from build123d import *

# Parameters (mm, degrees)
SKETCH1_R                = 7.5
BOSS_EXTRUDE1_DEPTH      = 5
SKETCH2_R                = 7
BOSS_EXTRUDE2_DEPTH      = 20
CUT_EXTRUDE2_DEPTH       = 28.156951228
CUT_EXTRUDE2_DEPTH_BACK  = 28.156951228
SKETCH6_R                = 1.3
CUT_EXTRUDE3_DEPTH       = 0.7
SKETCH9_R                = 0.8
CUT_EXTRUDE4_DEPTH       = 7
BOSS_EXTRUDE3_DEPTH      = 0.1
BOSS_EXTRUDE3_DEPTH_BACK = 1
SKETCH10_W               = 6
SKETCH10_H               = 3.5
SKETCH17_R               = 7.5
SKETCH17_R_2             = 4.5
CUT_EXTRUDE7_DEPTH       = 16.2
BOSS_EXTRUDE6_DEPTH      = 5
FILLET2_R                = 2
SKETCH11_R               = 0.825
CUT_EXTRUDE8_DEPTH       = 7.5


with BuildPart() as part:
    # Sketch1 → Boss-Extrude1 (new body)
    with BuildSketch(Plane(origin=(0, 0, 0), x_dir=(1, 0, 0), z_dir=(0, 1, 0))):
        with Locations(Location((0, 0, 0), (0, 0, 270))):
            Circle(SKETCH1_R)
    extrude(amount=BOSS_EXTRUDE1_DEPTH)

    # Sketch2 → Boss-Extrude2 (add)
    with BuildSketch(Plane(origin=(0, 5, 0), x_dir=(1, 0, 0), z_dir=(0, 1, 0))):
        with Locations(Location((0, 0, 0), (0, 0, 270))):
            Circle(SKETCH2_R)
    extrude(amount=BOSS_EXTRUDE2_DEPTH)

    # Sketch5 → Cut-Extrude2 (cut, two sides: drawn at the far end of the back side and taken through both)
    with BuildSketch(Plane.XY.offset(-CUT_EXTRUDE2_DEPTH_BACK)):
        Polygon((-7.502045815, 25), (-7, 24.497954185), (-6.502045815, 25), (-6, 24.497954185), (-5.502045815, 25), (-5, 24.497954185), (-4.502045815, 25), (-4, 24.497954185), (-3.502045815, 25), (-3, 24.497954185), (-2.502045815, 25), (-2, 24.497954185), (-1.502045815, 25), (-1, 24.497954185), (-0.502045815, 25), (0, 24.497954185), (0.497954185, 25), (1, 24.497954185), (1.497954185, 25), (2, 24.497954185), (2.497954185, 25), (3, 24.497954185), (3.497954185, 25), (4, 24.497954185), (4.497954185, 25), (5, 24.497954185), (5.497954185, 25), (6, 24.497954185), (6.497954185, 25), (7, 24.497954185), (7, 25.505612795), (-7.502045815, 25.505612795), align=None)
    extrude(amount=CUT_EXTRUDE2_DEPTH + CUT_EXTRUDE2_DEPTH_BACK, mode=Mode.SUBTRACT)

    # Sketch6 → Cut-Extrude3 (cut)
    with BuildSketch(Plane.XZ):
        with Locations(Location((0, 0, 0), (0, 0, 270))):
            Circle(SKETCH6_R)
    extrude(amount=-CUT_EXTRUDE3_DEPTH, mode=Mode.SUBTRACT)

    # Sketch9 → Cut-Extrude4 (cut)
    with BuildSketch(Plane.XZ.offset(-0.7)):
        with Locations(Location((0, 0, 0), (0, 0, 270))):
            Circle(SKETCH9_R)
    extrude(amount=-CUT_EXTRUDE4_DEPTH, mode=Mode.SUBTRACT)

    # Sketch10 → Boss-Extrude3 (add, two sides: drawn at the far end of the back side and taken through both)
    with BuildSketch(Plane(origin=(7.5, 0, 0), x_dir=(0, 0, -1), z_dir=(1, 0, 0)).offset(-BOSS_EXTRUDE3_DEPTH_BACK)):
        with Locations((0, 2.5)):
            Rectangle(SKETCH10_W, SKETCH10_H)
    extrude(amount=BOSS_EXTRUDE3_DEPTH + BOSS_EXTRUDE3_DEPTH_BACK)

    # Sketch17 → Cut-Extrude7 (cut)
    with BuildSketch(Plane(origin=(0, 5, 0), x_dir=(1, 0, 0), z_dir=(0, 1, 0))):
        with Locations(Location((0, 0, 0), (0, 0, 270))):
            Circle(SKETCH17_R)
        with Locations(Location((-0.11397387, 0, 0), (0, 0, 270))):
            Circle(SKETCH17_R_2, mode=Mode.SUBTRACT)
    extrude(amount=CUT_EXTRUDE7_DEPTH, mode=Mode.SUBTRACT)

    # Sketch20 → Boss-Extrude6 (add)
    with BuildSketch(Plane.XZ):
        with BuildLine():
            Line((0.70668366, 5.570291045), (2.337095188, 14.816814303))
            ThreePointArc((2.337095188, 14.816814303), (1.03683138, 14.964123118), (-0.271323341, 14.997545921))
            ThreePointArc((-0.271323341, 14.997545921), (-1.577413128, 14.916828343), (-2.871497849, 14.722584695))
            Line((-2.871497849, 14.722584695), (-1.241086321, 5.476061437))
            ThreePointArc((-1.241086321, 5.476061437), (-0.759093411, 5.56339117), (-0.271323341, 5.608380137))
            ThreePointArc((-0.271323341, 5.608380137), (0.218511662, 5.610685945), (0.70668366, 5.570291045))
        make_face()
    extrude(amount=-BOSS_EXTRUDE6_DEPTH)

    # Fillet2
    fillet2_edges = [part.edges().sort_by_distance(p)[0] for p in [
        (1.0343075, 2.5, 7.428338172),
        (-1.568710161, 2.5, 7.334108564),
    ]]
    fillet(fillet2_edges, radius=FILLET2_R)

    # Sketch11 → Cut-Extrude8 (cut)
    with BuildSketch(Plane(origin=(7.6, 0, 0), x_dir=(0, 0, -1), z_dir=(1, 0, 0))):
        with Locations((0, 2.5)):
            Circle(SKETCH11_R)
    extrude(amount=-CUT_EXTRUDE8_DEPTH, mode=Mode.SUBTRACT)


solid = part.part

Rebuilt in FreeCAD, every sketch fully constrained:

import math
import FreeCAD as App
import Part
import Sketcher
Q = App.Units.Quantity


def edges_at(feature, points):
    """Names of the edges that pass closest to the given points."""
    edges = feature.Shape.Edges
    near = lambda p: min(range(len(edges)), key=lambda i: edges[i].distToShape(Part.Vertex(*p))[0])
    return sorted({f"Edge{near(p) + 1}" for p in points})

doc = App.newDocument("Part")
body = doc.addObject("PartDesign::Body", "Body")

sketch1 = doc.addObject("Sketcher::SketchObject", "Sketch")
body.addObject(sketch1)
sketch1.AttachmentSupport = (doc.XZ_Plane, [""])
sketch1.MapMode = "FlatFace"
sketch1.addGeometry(Part.Circle(App.Vector(0, 0, 0), App.Vector(0, 0, 1), 8), False)
sketch1.addConstraint([
    Sketcher.Constraint("Coincident", 0, 3, -1, 1),
    Sketcher.Constraint("Diameter", 0, 15.0),
])
pad1 = doc.addObject("PartDesign::Pad", "Pad")
body.addObject(pad1)
pad1.Profile = sketch1
pad1.Length = 5
pad1.Reversed = True

sketch2 = doc.addObject("Sketcher::SketchObject", "Sketch001")
body.addObject(sketch2)
sketch2.AttachmentSupport = (doc.XZ_Plane, [""])
sketch2.MapMode = "FlatFace"
sketch2.AttachmentOffset = App.Placement(App.Vector(0, 0, -5), App.Rotation())
sketch2.addGeometry(Part.Circle(App.Vector(0, 0, 0), App.Vector(0, 0, 1), 7), False)
sketch2.addConstraint([
    Sketcher.Constraint("Coincident", 0, 3, -1, 1),
    Sketcher.Constraint("Diameter", 0, 14.0),
])
pad2 = doc.addObject("PartDesign::Pad", "Pad001")
body.addObject(pad2)
pad2.Profile = sketch2
pad2.Length = 20
pad2.Reversed = True

sketch3 = doc.addObject("Sketcher::SketchObject", "Sketch002")
body.addObject(sketch3)
sketch3.AttachmentSupport = (doc.XY_Plane, [""])
sketch3.MapMode = "FlatFace"
sketch3.addGeometry([
    Part.LineSegment(App.Vector(-7.5, 25, 0), App.Vector(-7, 24.5, 0)),
    Part.LineSegment(App.Vector(-7, 24.5, 0), App.Vector(-6.5, 25, 0)),
    Part.LineSegment(App.Vector(-6.5, 25, 0), App.Vector(-6, 24.5, 0)),
    Part.LineSegment(App.Vector(-6, 24.5, 0), App.Vector(-5.5, 25, 0)),
    Part.LineSegment(App.Vector(-5.5, 25, 0), App.Vector(-5, 24.5, 0)),
    Part.LineSegment(App.Vector(-5, 24.5, 0), App.Vector(-4.5, 25, 0)),
    Part.LineSegment(App.Vector(-4.5, 25, 0), App.Vector(-4, 24.5, 0)),
    Part.LineSegment(App.Vector(-4, 24.5, 0), App.Vector(-3.5, 25, 0)),
    Part.LineSegment(App.Vector(-3.5, 25, 0), App.Vector(-3, 24.5, 0)),
    Part.LineSegment(App.Vector(-3, 24.5, 0), App.Vector(-2.5, 25, 0)),
    Part.LineSegment(App.Vector(-2.5, 25, 0), App.Vector(-2, 24.5, 0)),
    Part.LineSegment(App.Vector(-2, 24.5, 0), App.Vector(-1.5, 25, 0)),
    Part.LineSegment(App.Vector(-1.5, 25, 0), App.Vector(-1, 24.5, 0)),
    Part.LineSegment(App.Vector(-1, 24.5, 0), App.Vector(-0.5, 25, 0)),
    Part.LineSegment(App.Vector(-0.5, 25, 0), App.Vector(0, 24.5, 0)),
    Part.LineSegment(App.Vector(0, 24.5, 0), App.Vector(0.5, 25, 0)),
    Part.LineSegment(App.Vector(0.5, 25, 0), App.Vector(1, 24.5, 0)),
    Part.LineSegment(App.Vector(1, 24.5, 0), App.Vector(1.5, 25, 0)),
    Part.LineSegment(App.Vector(1.5, 25, 0), App.Vector(2, 24.5, 0)),
    Part.LineSegment(App.Vector(2, 24.5, 0), App.Vector(2.5, 25, 0)),
    Part.LineSegment(App.Vector(2.5, 25, 0), App.Vector(3, 24.5, 0)),
    Part.LineSegment(App.Vector(3, 24.5, 0), App.Vector(3.5, 25, 0)),
    Part.LineSegment(App.Vector(3.5, 25, 0), App.Vector(4, 24.5, 0)),
    Part.LineSegment(App.Vector(4, 24.5, 0), App.Vector(4.5, 25, 0)),
    Part.LineSegment(App.Vector(4.5, 25, 0), App.Vector(5, 24.5, 0)),
    Part.LineSegment(App.Vector(5, 24.5, 0), App.Vector(5.5, 25, 0)),
    Part.LineSegment(App.Vector(5.5, 25, 0), App.Vector(6, 24.5, 0)),
    Part.LineSegment(App.Vector(6, 24.5, 0), App.Vector(6.5, 25, 0)),
    Part.LineSegment(App.Vector(6.5, 25, 0), App.Vector(7, 24.5, 0)),
    Part.LineSegment(App.Vector(7, 24.5, 0), App.Vector(7, 25.5, 0)),
    Part.LineSegment(App.Vector(7, 25.5, 0), App.Vector(-7.5, 25.5, 0)),
    Part.LineSegment(App.Vector(-7.5, 25.5, 0), App.Vector(-7.5, 25, 0)),
], False)
sketch3.addConstraint([
    Sketcher.Constraint("Coincident", 0, 2, 1, 1),
    Sketcher.Constraint("Coincident", 1, 2, 2, 1),
    Sketcher.Constraint("Coincident", 2, 2, 3, 1),
    Sketcher.Constraint("Coincident", 3, 2, 4, 1),
    Sketcher.Constraint("Coincident", 4, 2, 5, 1),
    Sketcher.Constraint("Coincident", 5, 2, 6, 1),
    Sketcher.Constraint("Coincident", 6, 2, 7, 1),
    Sketcher.Constraint("Coincident", 7, 2, 8, 1),
    Sketcher.Constraint("Coincident", 8, 2, 9, 1),
    Sketcher.Constraint("Coincident", 9, 2, 10, 1),
    Sketcher.Constraint("Coincident", 10, 2, 11, 1),
    Sketcher.Constraint("Coincident", 11, 2, 12, 1),
    Sketcher.Constraint("Coincident", 12, 2, 13, 1),
    Sketcher.Constraint("Coincident", 13, 2, 14, 1),
    Sketcher.Constraint("Coincident", 14, 2, 15, 1),
    Sketcher.Constraint("Coincident", 15, 2, 16, 1),
    Sketcher.Constraint("Coincident", 16, 2, 17, 1),
    Sketcher.Constraint("Coincident", 17, 2, 18, 1),
    Sketcher.Constraint("Coincident", 18, 2, 19, 1),
    Sketcher.Constraint("Coincident", 19, 2, 20, 1),
    Sketcher.Constraint("Coincident", 20, 2, 21, 1),
    Sketcher.Constraint("Coincident", 21, 2, 22, 1),
    Sketcher.Constraint("Coincident", 22, 2, 23, 1),
    Sketcher.Constraint("Coincident", 23, 2, 24, 1),
    Sketcher.Constraint("Coincident", 24, 2, 25, 1),
    Sketcher.Constraint("Coincident", 25, 2, 26, 1),
    Sketcher.Constraint("Coincident", 26, 2, 27, 1),
    Sketcher.Constraint("Coincident", 27, 2, 28, 1),
    Sketcher.Constraint("Coincident", 28, 2, 29, 1),
    Sketcher.Constraint("Coincident", 29, 2, 30, 1),
    Sketcher.Constraint("Coincident", 30, 2, 31, 1),
    Sketcher.Constraint("Coincident", 31, 2, 0, 1),
    Sketcher.Constraint("Vertical", 29),
    Sketcher.Constraint("Horizontal", 30),
    Sketcher.Constraint("Vertical", 31),
    Sketcher.Constraint("Symmetric", 12, 2, 16, 2, -2),
    Sketcher.Constraint("Symmetric", 10, 2, 18, 2, -2),
    Sketcher.Constraint("Symmetric", 8, 2, 20, 2, -2),
    Sketcher.Constraint("Symmetric", 6, 2, 22, 2, -2),
    Sketcher.Constraint("Symmetric", 4, 2, 24, 2, -2),
    Sketcher.Constraint("Symmetric", 2, 2, 26, 2, -2),
    Sketcher.Constraint("Symmetric", 0, 2, 28, 2, -2),
    Sketcher.Constraint("PointOnObject", 14, 2, -2),
    Sketcher.Constraint("Parallel", 0, 2),
    Sketcher.Constraint("Parallel", 1, 3),
    Sketcher.Constraint("Parallel", 2, 4),
    Sketcher.Constraint("Parallel", 3, 5),
    Sketcher.Constraint("Parallel", 4, 6),
    Sketcher.Constraint("Parallel", 5, 7),
    Sketcher.Constraint("Parallel", 6, 8),
    Sketcher.Constraint("Parallel", 7, 9),
    Sketcher.Constraint("Parallel", 8, 10),
    Sketcher.Constraint("Parallel", 9, 11),
    Sketcher.Constraint("Parallel", 10, 12),
    Sketcher.Constraint("Parallel", 11, 13),
    Sketcher.Constraint("Parallel", 12, 14),
    Sketcher.Constraint("Parallel", 13, 15),
    Sketcher.Constraint("Parallel", 14, 16),
    Sketcher.Constraint("Parallel", 15, 17),
    Sketcher.Constraint("Parallel", 16, 18),
    Sketcher.Constraint("Parallel", 17, 19),
    Sketcher.Constraint("Parallel", 18, 20),
    Sketcher.Constraint("Parallel", 19, 21),
    Sketcher.Constraint("Parallel", 20, 22),
    Sketcher.Constraint("Parallel", 21, 23),
    Sketcher.Constraint("Parallel", 22, 24),
    Sketcher.Constraint("Parallel", 23, 25),
    Sketcher.Constraint("Parallel", 24, 26),
    Sketcher.Constraint("Parallel", 25, 27),
    Sketcher.Constraint("Parallel", 26, 28),
    Sketcher.Constraint("Horizontal", 0, 2, 2, 2),
    Sketcher.Constraint("Horizontal", 1, 2, 3, 2),
    Sketcher.Constraint("Horizontal", 2, 2, 4, 2),
    Sketcher.Constraint("Horizontal", 3, 2, 5, 2),
    Sketcher.Constraint("Horizontal", 4, 2, 6, 2),
    Sketcher.Constraint("Horizontal", 5, 2, 7, 2),
    Sketcher.Constraint("Horizontal", 6, 2, 8, 2),
    Sketcher.Constraint("Horizontal", 7, 2, 9, 2),
    Sketcher.Constraint("Horizontal", 8, 2, 10, 2),
    Sketcher.Constraint("Horizontal", 9, 2, 11, 2),
    Sketcher.Constraint("Horizontal", 10, 2, 12, 2),
    Sketcher.Constraint("Horizontal", 11, 2, 13, 2),
    Sketcher.Constraint("Horizontal", 12, 2, 14, 2),
    Sketcher.Constraint("Horizontal", 27, 2, 31, 2),
    Sketcher.Constraint("Angle", 0, Q("-45 deg")),
    Sketcher.Constraint("DistanceX", 0, 2, -1, 1, 7.0),
    Sketcher.Constraint("DistanceY", -1, 1, 1, 2, 25.0),
    Sketcher.Constraint("Distance", 0, 0.71),
    Sketcher.Constraint("DistanceY", 29, 1, 29, 2, 1.007659),
])
pocket1 = doc.addObject("PartDesign::Pocket", "Pocket")
body.addObject(pocket1)
pocket1.Profile = sketch3
pocket1.Type = "ThroughAll"
pocket1.Midplane = True

sketch4 = doc.addObject("Sketcher::SketchObject", "Sketch003")
body.addObject(sketch4)
sketch4.AttachmentSupport = (doc.XZ_Plane, [""])
sketch4.MapMode = "FlatFace"
sketch4.addGeometry(Part.Circle(App.Vector(0, 0, 0), App.Vector(0, 0, 1), 1.3), False)
sketch4.addConstraint([
    Sketcher.Constraint("Coincident", 0, 3, -1, 1),
    Sketcher.Constraint("Diameter", 0, 2.6),
])
pocket2 = doc.addObject("PartDesign::Pocket", "Pocket001")
body.addObject(pocket2)
pocket2.Profile = sketch4
pocket2.Length = 0.7

sketch5 = doc.addObject("Sketcher::SketchObject", "Sketch004")
body.addObject(sketch5)
sketch5.AttachmentSupport = (doc.XZ_Plane, [""])
sketch5.MapMode = "FlatFace"
sketch5.AttachmentOffset = App.Placement(App.Vector(0, 0, -0.7), App.Rotation())
sketch5.addGeometry(Part.Circle(App.Vector(0, 0, 0), App.Vector(0, 0, 1), 0.8), False)
sketch5.addConstraint([
    Sketcher.Constraint("Coincident", 0, 3, -1, 1),
    Sketcher.Constraint("Diameter", 0, 1.6),
])
pocket3 = doc.addObject("PartDesign::Pocket", "Pocket002")
body.addObject(pocket3)
pocket3.Profile = sketch5
pocket3.Length = 7

sketch6 = doc.addObject("Sketcher::SketchObject", "Sketch005")
body.addObject(sketch6)
sketch6.AttachmentSupport = (doc.YZ_Plane, [""])
sketch6.MapMode = "FlatFace"
sketch6.AttachmentOffset = App.Placement(App.Vector(0, 0, 7.5), App.Rotation())
sketch6.addGeometry([
    Part.LineSegment(App.Vector(4.2, 3, 0), App.Vector(0.8, 3, 0)),
    Part.LineSegment(App.Vector(0.8, 3, 0), App.Vector(0.8, -3, 0)),
    Part.LineSegment(App.Vector(0.8, -3, 0), App.Vector(4.2, -3, 0)),
    Part.LineSegment(App.Vector(4.2, -3, 0), App.Vector(4.2, 3, 0)),
], False)
sketch6.addConstraint([
    Sketcher.Constraint("Coincident", 0, 2, 1, 1),
    Sketcher.Constraint("Coincident", 1, 2, 2, 1),
    Sketcher.Constraint("Coincident", 2, 2, 3, 1),
    Sketcher.Constraint("Coincident", 3, 2, 0, 1),
    Sketcher.Constraint("Horizontal", 0),
    Sketcher.Constraint("Vertical", 1),
    Sketcher.Constraint("Horizontal", 2),
    Sketcher.Constraint("Vertical", 3),
    Sketcher.Constraint("DistanceY", 1, 2, 1, 1, 6.0),
    Sketcher.Constraint("DistanceX", 0, 2, 0, 1, 3.5),
    Sketcher.Constraint("DistanceY", -1, 1, 0, 2, 3.0),
    Sketcher.Constraint("DistanceX", -1, 1, 0, 2, 0.75),
])
pad3 = doc.addObject("PartDesign::Pad", "Pad002")
body.addObject(pad3)
pad3.Profile = sketch6
pad3.Type = "TwoLengths"
pad3.Length = 0.1
pad3.Length2 = 1

sketch7 = doc.addObject("Sketcher::SketchObject", "Sketch006")
body.addObject(sketch7)
sketch7.AttachmentSupport = (doc.XZ_Plane, [""])
sketch7.MapMode = "FlatFace"
sketch7.AttachmentOffset = App.Placement(App.Vector(0, 0, -5), App.Rotation())
sketch7.addGeometry([
    Part.Circle(App.Vector(0, 0, 0), App.Vector(0, 0, 1), 7.5),
    Part.Circle(App.Vector(-0.1, 0, 0), App.Vector(0, 0, 1), 4.5),
], False)
sketch7.addConstraint([
    Sketcher.Constraint("Coincident", 0, 3, -1, 1),
    Sketcher.Constraint("PointOnObject", 1, 3, -1),
    Sketcher.Constraint("Diameter", 0, 15.0),
    Sketcher.Constraint("Diameter", 1, 9.0),
    Sketcher.Constraint("DistanceX", 1, 3, -1, 1, 0.113974),
])
pocket4 = doc.addObject("PartDesign::Pocket", "Pocket003")
body.addObject(pocket4)
pocket4.Profile = sketch7
pocket4.Length = 16.2

sketch8 = doc.addObject("Sketcher::SketchObject", "Sketch007")
body.addObject(sketch8)
sketch8.AttachmentSupport = (doc.XZ_Plane, [""])
sketch8.MapMode = "FlatFace"
sketch8.addGeometry([
    Part.LineSegment(App.Vector(0.7, 5.6, 0), App.Vector(2.3, 14.8, 0)),
    Part.ArcOfCircle(Part.Circle(App.Vector(0, 0, 0), App.Vector(0, 0, 1), 15), math.radians(81.04), math.radians(91.04)),
    Part.ArcOfCircle(Part.Circle(App.Vector(0, 0, 0), App.Vector(0, 0, 1), 15), math.radians(91.04), math.radians(101.04)),
    Part.LineSegment(App.Vector(-2.9, 14.7, 0), App.Vector(-1.2, 5.5, 0)),
    Part.ArcOfCircle(Part.Circle(App.Vector(0, 0, 0), App.Vector(0, 0, 1), 5.6), math.radians(92.77), math.radians(102.77)),
    Part.ArcOfCircle(Part.Circle(App.Vector(0, 0, 0), App.Vector(0, 0, 1), 5.6), math.radians(82.77), math.radians(92.77)),
], False)
sketch8.addConstraint([
    Sketcher.Constraint("Coincident", 0, 2, 1, 1),
    Sketcher.Constraint("Tangent", 1, 2, 2, 1),
    Sketcher.Constraint("Coincident", 2, 2, 3, 1),
    Sketcher.Constraint("Coincident", 3, 2, 4, 2),
    Sketcher.Constraint("Tangent", 4, 1, 5, 2),
    Sketcher.Constraint("Coincident", 5, 1, 0, 1),
    Sketcher.Constraint("Coincident", 1, 3, -1, 1),
    Sketcher.Constraint("Coincident", 4, 3, -1, 1),
    Sketcher.Constraint("Equal", 1, 2),
    Sketcher.Constraint("Equal", 4, 5),
    Sketcher.Constraint("Vertical", 1, 2, 4, 1),
    Sketcher.Constraint("Equal", 0, 3),
    Sketcher.Constraint("Radius", 1, 15.0),
    Sketcher.Constraint("Angle", 0, Q("80 deg")),
    Sketcher.Constraint("Angle", 3, Q("-80 deg")),
    Sketcher.Constraint("Radius", 4, 5.614939),
    Sketcher.Constraint("DistanceY", -1, 1, 3, 2, 5.476061),
    Sketcher.Constraint("DistanceY", -1, 1, 4, 1, 5.60838),
])
pad4 = doc.addObject("PartDesign::Pad", "Pad003")
body.addObject(pad4)
pad4.Profile = sketch8
pad4.Length = 5
pad4.Reversed = True
doc.recompute()

fillet = doc.addObject("PartDesign::Fillet", "Fillet")
body.addObject(fillet)
fillet.Base = (pad4, edges_at(pad4, [(1.034, 2.5, 7.428), (-1.569, 2.5, 7.334)]))
fillet.Radius = 2

sketch9 = doc.addObject("Sketcher::SketchObject", "Sketch008")
body.addObject(sketch9)
sketch9.AttachmentSupport = (doc.YZ_Plane, [""])
sketch9.MapMode = "FlatFace"
sketch9.AttachmentOffset = App.Placement(App.Vector(0, 0, 7.6), App.Rotation())
sketch9.addGeometry(Part.Circle(App.Vector(2.5, 0, 0), App.Vector(0, 0, 1), 0.8), False)
sketch9.addConstraint([
    Sketcher.Constraint("PointOnObject", 0, 3, -1),
    Sketcher.Constraint("Diameter", 0, 1.65),
    Sketcher.Constraint("DistanceX", -1, 1, 0, 3, 2.5),
])
pocket5 = doc.addObject("PartDesign::Pocket", "Pocket004")
body.addObject(pocket5)
pocket5.Profile = sketch9
pocket5.Length = 7.5

doc.recompute()
